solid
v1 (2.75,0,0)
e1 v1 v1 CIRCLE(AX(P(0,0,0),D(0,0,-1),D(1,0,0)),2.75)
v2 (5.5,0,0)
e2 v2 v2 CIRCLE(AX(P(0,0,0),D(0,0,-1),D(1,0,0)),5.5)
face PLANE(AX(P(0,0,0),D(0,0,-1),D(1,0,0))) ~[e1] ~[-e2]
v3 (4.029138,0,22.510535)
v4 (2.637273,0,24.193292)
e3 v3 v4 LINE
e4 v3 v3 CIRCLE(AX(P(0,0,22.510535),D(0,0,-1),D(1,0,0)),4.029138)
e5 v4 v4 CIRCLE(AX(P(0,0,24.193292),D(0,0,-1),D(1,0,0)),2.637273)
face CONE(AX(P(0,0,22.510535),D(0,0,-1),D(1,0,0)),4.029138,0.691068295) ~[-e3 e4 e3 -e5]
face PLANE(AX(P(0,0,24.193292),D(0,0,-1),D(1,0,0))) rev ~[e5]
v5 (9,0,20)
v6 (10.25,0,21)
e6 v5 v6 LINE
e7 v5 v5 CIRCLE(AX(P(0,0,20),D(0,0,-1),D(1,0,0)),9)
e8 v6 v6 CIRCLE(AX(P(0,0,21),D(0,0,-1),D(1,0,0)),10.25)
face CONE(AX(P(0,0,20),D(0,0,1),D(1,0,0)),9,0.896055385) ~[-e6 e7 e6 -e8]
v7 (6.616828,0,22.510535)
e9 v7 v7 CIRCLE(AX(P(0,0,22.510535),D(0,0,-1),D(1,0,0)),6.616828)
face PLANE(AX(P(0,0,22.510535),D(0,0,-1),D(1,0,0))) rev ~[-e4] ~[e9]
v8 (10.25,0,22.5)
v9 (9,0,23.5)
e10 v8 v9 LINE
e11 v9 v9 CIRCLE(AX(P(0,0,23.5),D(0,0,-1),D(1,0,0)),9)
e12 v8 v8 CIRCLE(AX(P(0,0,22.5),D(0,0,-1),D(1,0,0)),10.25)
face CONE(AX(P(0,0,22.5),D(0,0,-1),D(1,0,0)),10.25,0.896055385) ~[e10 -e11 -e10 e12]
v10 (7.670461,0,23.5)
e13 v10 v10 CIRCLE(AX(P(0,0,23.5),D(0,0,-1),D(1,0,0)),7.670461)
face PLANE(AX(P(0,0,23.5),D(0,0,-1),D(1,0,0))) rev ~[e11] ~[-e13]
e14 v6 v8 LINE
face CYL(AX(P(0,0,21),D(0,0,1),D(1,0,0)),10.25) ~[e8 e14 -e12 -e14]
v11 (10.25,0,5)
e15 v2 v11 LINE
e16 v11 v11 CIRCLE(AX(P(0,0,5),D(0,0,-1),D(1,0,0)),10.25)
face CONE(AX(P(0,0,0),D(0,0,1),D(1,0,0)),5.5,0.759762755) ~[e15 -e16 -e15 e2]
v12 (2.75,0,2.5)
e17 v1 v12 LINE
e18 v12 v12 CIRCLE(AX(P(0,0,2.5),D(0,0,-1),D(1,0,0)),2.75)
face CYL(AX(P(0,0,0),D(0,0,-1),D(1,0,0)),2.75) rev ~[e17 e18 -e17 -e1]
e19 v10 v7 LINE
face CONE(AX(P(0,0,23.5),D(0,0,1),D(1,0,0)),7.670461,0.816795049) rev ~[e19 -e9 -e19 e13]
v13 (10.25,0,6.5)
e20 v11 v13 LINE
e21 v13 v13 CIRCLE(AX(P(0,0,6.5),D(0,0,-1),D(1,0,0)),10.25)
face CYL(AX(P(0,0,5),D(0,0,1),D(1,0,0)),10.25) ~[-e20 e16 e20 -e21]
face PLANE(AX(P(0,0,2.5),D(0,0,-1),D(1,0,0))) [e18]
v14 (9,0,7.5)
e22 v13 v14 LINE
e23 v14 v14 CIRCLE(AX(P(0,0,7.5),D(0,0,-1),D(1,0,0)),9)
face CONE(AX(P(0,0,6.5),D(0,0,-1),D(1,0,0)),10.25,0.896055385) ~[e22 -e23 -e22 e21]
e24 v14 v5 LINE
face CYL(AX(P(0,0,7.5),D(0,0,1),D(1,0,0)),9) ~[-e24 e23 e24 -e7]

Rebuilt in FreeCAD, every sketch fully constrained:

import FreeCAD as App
import Part
import Sketcher

V = App.Vector
Q = App.Units.Quantity

doc = App.newDocument("Part")
body = doc.addObject("PartDesign::Body", "Body")

sketch1 = doc.addObject("Sketcher::SketchObject", "Sketch")
body.addObject(sketch1)
sketch1.AttachmentSupport = (doc.XZ_Plane, [""])
sketch1.MapMode = "FlatFace"
sketch1.addGeometry([
    Part.LineSegment(V(0, 0, 0), V(5.5, 0, 0)),
    Part.LineSegment(V(5.5, 0, 0), V(10.2, 5, 0)),
    Part.LineSegment(V(10.2, 5, 0), V(10.2, 6.5, 0)),
    Part.LineSegment(V(10.2, 6.5, 0), V(9, 7.5, 0)),
    Part.LineSegment(V(9, 7.5, 0), V(9, 20, 0)),
    Part.LineSegment(V(9, 20, 0), V(10.2, 21, 0)),
    Part.LineSegment(V(10.2, 21, 0), V(10.2, 22.5, 0)),
    Part.LineSegment(V(10.2, 22.5, 0), V(9, 23.5, 0)),
    Part.LineSegment(V(9, 23.5, 0), V(7.7, 23.5, 0)),
    Part.LineSegment(V(7.7, 23.5, 0), V(6.6, 22.5, 0)),
    Part.LineSegment(V(6.6, 22.5, 0), V(4, 22.5, 0)),
    Part.LineSegment(V(4, 22.5, 0), V(2.6, 24.2, 0)),
    Part.LineSegment(V(2.6, 24.2, 0), V(0, 24.2, 0)),
    Part.LineSegment(V(0, 24.2, 0), V(0, 0, 0)),
], False)
sketch1.addConstraint([
    Sketcher.Constraint("Coincident", 0, 2, 1, 1),
    Sketcher.Constraint("Coincident", 1, 2, 2, 1),
    Sketcher.Constraint("Coincident", 2, 2, 3, 1),
    Sketcher.Constraint("Coincident", 3, 2, 4, 1),
    Sketcher.Constraint("Coincident", 4, 2, 5, 1),
    Sketcher.Constraint("Coincident", 5, 2, 6, 1),
    Sketcher.Constraint("Coincident", 6, 2, 7, 1),
    Sketcher.Constraint("Coincident", 7, 2, 8, 1),
    Sketcher.Constraint("Coincident", 8, 2, 9, 1),
    Sketcher.Constraint("Coincident", 9, 2, 10, 1),
    Sketcher.Constraint("Coincident", 10, 2, 11, 1),
    Sketcher.Constraint("Coincident", 11, 2, 12, 1),
    Sketcher.Constraint("Coincident", 12, 2, 13, 1),
    Sketcher.Constraint("Coincident", 13, 2, 0, 1),
    Sketcher.Constraint("Horizontal", 0),
    Sketcher.Constraint("Vertical", 2),
    Sketcher.Constraint("Vertical", 4),
    Sketcher.Constraint("Vertical", 6),
    Sketcher.Constraint("Horizontal", 8),
    Sketcher.Constraint("Horizontal", 10),
    Sketcher.Constraint("Horizontal", 12),
    Sketcher.Constraint("Vertical", 13),
    Sketcher.Constraint("Coincident", 13, 2, -1, 1),
    Sketcher.Constraint("Parallel", 3, 7),
    Sketcher.Constraint("Vertical", 2, 2, 5, 2),
    Sketcher.Constraint("Vertical", 4, 2, 7, 2),
    Sketcher.Constraint("Equal", 2, 6),
    Sketcher.Constraint("Equal", 3, 5),
    Sketcher.Constraint("DistanceX", 0, 1, 0, 2, Q("5.5 mm")),
    Sketcher.Constraint("DistanceY", 2, 1, 2, 2, Q("1.5 mm")),
    Sketcher.Constraint("DistanceY", 4, 1, 4, 2, Q("12.5 mm")),
    Sketcher.Constraint("DistanceY", -1, 1, 1, 2, Q("5 mm")),
    Sketcher.Constraint("DistanceX", -1, 1, 3, 2, Q("9 mm")),
    Sketcher.Constraint("DistanceY", -1, 1, 4, 2, Q("20 mm")),
    Sketcher.Constraint("DistanceX", -1, 1, 1, 2, Q("10.25 mm")),
    Sketcher.Constraint("Distance", 9, Q("1.445401 mm")),
    Sketcher.Constraint("DistanceX", 8, 2, 8, 1, Q("1.329539 mm")),
    Sketcher.Constraint("DistanceX", 10, 2, 10, 1, Q("2.58769 mm")),
    Sketcher.Constraint("DistanceY", 13, 2, 13, 1, Q("24.193292 mm")),
    Sketcher.Constraint("DistanceX", 12, 2, 12, 1, Q("2.637273 mm")),
    Sketcher.Constraint("Distance", 11, Q("2.183795 mm")),
])
revolution = doc.addObject("PartDesign::Revolution", "Revolution")
body.addObject(revolution)
revolution.Profile = sketch1
revolution.ReferenceAxis = (sketch1, ["V_Axis"])
revolution.Angle = 360

sketch2 = doc.addObject("Sketcher::SketchObject", "Sketch001")
body.addObject(sketch2)
sketch2.AttachmentSupport = (doc.XY_Plane, [""])
sketch2.MapMode = "FlatFace"
sketch2.addGeometry(Part.Circle(V(0, 0, 0), V(0, 0, 1), 2.8), False)
sketch2.addConstraint([
    Sketcher.Constraint("Coincident", 0, 3, -1, 1),
    Sketcher.Constraint("Diameter", 0, Q("5.5 mm")),
])
pocket1 = doc.addObject("PartDesign::Pocket", "Pocket")
body.addObject(pocket1)
pocket1.Profile = sketch2
pocket1.Length = 2.5
pocket1.Reversed = True

doc.recompute()
